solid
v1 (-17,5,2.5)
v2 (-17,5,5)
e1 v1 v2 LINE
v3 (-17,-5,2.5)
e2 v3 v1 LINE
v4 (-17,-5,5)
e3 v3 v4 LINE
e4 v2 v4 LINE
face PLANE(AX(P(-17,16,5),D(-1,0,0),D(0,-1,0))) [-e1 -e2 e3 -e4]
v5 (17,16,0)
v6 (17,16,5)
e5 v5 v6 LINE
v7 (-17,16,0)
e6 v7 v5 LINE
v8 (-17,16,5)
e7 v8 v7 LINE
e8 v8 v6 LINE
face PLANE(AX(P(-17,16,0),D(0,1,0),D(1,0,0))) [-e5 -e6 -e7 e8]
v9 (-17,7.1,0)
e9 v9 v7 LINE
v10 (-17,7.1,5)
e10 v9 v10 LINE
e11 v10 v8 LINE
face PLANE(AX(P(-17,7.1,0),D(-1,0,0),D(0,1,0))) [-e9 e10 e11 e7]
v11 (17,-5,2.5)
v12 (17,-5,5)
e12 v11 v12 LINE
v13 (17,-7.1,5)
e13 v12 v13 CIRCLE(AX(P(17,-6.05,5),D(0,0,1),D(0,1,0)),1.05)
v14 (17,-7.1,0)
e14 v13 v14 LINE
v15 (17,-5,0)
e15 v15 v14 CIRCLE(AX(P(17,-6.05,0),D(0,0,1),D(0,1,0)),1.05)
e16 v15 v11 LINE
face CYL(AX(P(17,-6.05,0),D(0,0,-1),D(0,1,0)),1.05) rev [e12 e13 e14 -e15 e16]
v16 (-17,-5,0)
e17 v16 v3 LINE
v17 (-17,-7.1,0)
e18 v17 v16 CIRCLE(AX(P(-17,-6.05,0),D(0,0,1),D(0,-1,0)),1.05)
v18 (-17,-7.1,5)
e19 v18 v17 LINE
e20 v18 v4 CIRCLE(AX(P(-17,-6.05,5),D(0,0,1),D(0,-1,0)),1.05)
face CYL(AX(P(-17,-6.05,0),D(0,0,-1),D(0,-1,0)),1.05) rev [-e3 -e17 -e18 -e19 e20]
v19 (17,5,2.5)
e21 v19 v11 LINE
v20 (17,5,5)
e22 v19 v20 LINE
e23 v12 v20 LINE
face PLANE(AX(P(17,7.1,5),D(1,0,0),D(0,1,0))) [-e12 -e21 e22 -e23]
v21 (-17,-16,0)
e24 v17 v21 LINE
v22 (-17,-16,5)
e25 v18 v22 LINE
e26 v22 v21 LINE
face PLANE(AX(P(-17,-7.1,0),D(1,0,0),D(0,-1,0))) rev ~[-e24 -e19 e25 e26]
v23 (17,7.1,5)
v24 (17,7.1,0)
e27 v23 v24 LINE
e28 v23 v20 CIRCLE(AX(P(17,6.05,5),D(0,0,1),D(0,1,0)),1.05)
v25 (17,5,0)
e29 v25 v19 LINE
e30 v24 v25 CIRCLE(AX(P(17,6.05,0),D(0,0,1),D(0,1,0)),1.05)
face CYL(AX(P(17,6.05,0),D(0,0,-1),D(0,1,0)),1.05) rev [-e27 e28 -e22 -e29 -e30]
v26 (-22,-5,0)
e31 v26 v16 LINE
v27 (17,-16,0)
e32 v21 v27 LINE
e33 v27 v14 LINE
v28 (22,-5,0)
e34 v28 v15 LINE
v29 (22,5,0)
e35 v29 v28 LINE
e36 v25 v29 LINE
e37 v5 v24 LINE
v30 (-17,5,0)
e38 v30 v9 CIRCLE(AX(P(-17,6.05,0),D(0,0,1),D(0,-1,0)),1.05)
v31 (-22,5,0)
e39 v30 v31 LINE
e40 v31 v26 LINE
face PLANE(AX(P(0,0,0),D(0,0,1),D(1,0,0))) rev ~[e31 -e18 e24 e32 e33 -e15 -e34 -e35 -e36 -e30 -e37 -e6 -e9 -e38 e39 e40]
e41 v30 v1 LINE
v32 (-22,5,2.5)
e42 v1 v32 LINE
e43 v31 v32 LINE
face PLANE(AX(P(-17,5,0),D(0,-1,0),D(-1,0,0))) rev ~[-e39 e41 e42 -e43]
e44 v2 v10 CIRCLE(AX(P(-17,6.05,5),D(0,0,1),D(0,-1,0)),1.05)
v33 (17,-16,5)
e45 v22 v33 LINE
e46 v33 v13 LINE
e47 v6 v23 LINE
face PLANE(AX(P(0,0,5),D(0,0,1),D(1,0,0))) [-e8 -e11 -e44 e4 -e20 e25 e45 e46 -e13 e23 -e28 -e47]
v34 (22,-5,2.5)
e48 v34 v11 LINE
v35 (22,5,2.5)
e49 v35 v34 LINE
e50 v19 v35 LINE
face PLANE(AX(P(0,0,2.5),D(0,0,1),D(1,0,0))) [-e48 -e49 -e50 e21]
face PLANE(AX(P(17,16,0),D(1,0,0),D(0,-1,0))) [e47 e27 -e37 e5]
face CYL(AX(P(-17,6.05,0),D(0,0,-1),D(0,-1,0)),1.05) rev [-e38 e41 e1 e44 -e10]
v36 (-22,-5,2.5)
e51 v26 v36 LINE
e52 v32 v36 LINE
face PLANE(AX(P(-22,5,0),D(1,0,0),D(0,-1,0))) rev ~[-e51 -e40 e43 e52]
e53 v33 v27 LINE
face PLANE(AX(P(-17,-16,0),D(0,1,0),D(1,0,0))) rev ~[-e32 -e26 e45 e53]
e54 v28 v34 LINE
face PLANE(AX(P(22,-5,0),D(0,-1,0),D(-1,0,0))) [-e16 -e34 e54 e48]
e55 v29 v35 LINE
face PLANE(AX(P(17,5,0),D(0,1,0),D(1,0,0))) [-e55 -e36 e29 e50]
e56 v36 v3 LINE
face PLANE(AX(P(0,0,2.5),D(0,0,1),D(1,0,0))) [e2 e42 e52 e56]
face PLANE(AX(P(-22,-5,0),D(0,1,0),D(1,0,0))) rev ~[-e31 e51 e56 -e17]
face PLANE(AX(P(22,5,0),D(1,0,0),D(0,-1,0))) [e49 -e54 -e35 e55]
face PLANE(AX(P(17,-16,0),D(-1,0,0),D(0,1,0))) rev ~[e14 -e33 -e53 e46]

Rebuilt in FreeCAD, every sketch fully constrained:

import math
import FreeCAD as App
import Part
import Sketcher
Q = App.Units.Quantity

doc = App.newDocument("Part")
body = doc.addObject("PartDesign::Body", "Body")

sketch1 = body.newObject("Sketcher::SketchObject", "Sketch")
sketch1.AttachmentSupport = (doc.getObject("XY_Plane"), [""])
sketch1.MapMode = "FlatFace"
sketch1.addGeometry(Part.LineSegment(App.Vector(-17, 16, 0), App.Vector(-17, 7.1, 0)), False)
sketch1.addGeometry(Part.ArcOfCircle(Part.Circle(App.Vector(-17, 6, 0), App.Vector(0, 0, 1), 1), math.radians(-90), math.radians(90)), False)
sketch1.addGeometry(Part.LineSegment(App.Vector(-17, 5, 0), App.Vector(-22, 5, 0)), False)
sketch1.addGeometry(Part.LineSegment(App.Vector(-22, 5, 0), App.Vector(-22, -5, 0)), False)
sketch1.addGeometry(Part.LineSegment(App.Vector(-22, -5, 0), App.Vector(-17, -5, 0)), False)
sketch1.addGeometry(Part.ArcOfCircle(Part.Circle(App.Vector(-17, -6, 0), App.Vector(0, 0, 1), 1), math.radians(-90), math.radians(90)), False)
sketch1.addGeometry(Part.LineSegment(App.Vector(-17, -7.1, 0), App.Vector(-17, -16, 0)), False)
sketch1.addGeometry(Part.LineSegment(App.Vector(-17, -16, 0), App.Vector(17, -16, 0)), False)
sketch1.addGeometry(Part.LineSegment(App.Vector(17, -16, 0), App.Vector(17, -7.1, 0)), False)
sketch1.addGeometry(Part.ArcOfCircle(Part.Circle(App.Vector(17, -6, 0), App.Vector(0, 0, 1), 1), math.radians(90), math.radians(270)), False)
sketch1.addGeometry(Part.LineSegment(App.Vector(17, -5, 0), App.Vector(22, -5, 0)), False)
sketch1.addGeometry(Part.LineSegment(App.Vector(22, -5, 0), App.Vector(22, 5, 0)), False)
sketch1.addGeometry(Part.LineSegment(App.Vector(22, 5, 0), App.Vector(17, 5, 0)), False)
sketch1.addGeometry(Part.ArcOfCircle(Part.Circle(App.Vector(17, 6, 0), App.Vector(0, 0, 1), 1), math.radians(90), math.radians(270)), False)
sketch1.addGeometry(Part.LineSegment(App.Vector(17, 7.1, 0), App.Vector(17, 16, 0)), False)
sketch1.addGeometry(Part.LineSegment(App.Vector(17, 16, 0), App.Vector(-17, 16, 0)), False)
sketch1.addConstraint(Sketcher.Constraint("Coincident", 0, 2, 1, 2))
sketch1.addConstraint(Sketcher.Constraint("Tangent", 1, 1, 2, 1))
sketch1.addConstraint(Sketcher.Constraint("Coincident", 2, 2, 3, 1))
sketch1.addConstraint(Sketcher.Constraint("Coincident", 3, 2, 4, 1))
sketch1.addConstraint(Sketcher.Constraint("Tangent", 4, 2, 5, 2))
sketch1.addConstraint(Sketcher.Constraint("Coincident", 5, 1, 6, 1))
sketch1.addConstraint(Sketcher.Constraint("Coincident", 6, 2, 7, 1))
sketch1.addConstraint(Sketcher.Constraint("Coincident", 7, 2, 8, 1))
sketch1.addConstraint(Sketcher.Constraint("Coincident", 8, 2, 9, 2))
sketch1.addConstraint(Sketcher.Constraint("Tangent", 9, 1, 10, 1))
sketch1.addConstraint(Sketcher.Constraint("Coincident", 10, 2, 11, 1))
sketch1.addConstraint(Sketcher.Constraint("Coincident", 11, 2, 12, 1))
sketch1.addConstraint(Sketcher.Constraint("Tangent", 12, 2, 13, 2))
sketch1.addConstraint(Sketcher.Constraint("Coincident", 13, 1, 14, 1))
sketch1.addConstraint(Sketcher.Constraint("Coincident", 14, 2, 15, 1))
sketch1.addConstraint(Sketcher.Constraint("Coincident", 15, 2, 0, 1))
sketch1.addConstraint(Sketcher.Constraint("Vertical", 0))
sketch1.addConstraint(Sketcher.Constraint("Horizontal", 2))
sketch1.addConstraint(Sketcher.Constraint("Vertical", 3))
sketch1.addConstraint(Sketcher.Constraint("Horizontal", 4))
sketch1.addConstraint(Sketcher.Constraint("Vertical", 6))
sketch1.addConstraint(Sketcher.Constraint("Horizontal", 7))
sketch1.addConstraint(Sketcher.Constraint("Vertical", 8))
sketch1.addConstraint(Sketcher.Constraint("Horizontal", 10))
sketch1.addConstraint(Sketcher.Constraint("Vertical", 11))
sketch1.addConstraint(Sketcher.Constraint("Horizontal", 12))
sketch1.addConstraint(Sketcher.Constraint("Vertical", 14))
sketch1.addConstraint(Sketcher.Constraint("Horizontal", 15))
sketch1.addConstraint(Sketcher.Constraint("Equal", 1, 5))
sketch1.addConstraint(Sketcher.Constraint("Equal", 5, 9))
sketch1.addConstraint(Sketcher.Constraint("Equal", 9, 13))
sketch1.addConstraint(Sketcher.Constraint("Symmetric", 1, 3, 9, 3, -1, 1))
sketch1.addConstraint(Sketcher.Constraint("Symmetric", 5, 3, 13, 3, -1, 1))
sketch1.addConstraint(Sketcher.Constraint("Symmetric", 6, 2, 14, 2, -1, 1))
sketch1.addConstraint(Sketcher.Constraint("Symmetric", 5, 3, 9, 3, -2))
sketch1.addConstraint(Sketcher.Constraint("Vertical", 5, 3, 0, 2))
sketch1.addConstraint(Sketcher.Constraint("Vertical", 4, 2, 5, 1))
sketch1.addConstraint(Sketcher.Constraint("Vertical", 13, 3, 7, 2))
sketch1.addConstraint(Sketcher.Constraint("Equal", 4, 10))
sketch1.addConstraint(Sketcher.Constraint("DistanceX", 2, 2, 2, 1, Q("5 mm")))
sketch1.addConstraint(Sketcher.Constraint("DistanceX", 7, 1, 7, 2, Q("34 mm")))
sketch1.addConstraint(Sketcher.Constraint("Radius", 1, Q("1.05 mm")))
sketch1.addConstraint(Sketcher.Constraint("DistanceY", -1, 1, 1, 1, Q("5 mm")))
sketch1.addConstraint(Sketcher.Constraint("DistanceY", 6, 2, 4, 2, Q("11 mm")))
pad1 = body.newObject("PartDesign::Pad", "Pad")
pad1.Profile = sketch1
pad1.Length = 5

sketch2 = body.newObject("Sketcher::SketchObject", "Sketch001")
sketch2.AttachmentSupport = (doc.getObject("XY_Plane"), [""])
sketch2.MapMode = "FlatFace"
sketch2.AttachmentOffset = App.Placement(App.Vector(0, 0, 5), App.Rotation())
sketch2.addGeometry(Part.LineSegment(App.Vector(-17, -24, 0), App.Vector(-17, 19, 0)), False)
sketch2.addGeometry(Part.LineSegment(App.Vector(-17, 19, 0), App.Vector(-28, 19, 0)), False)
sketch2.addGeometry(Part.LineSegment(App.Vector(-28, 19, 0), App.Vector(-28, -24, 0)), False)
sketch2.addGeometry(Part.LineSegment(App.Vector(-28, -24, 0), App.Vector(-17, -24, 0)), False)
sketch2.addGeometry(Part.LineSegment(App.Vector(17, 14, 0), App.Vector(17, -20, 0)), False)
sketch2.addGeometry(Part.LineSegment(App.Vector(17, -20, 0), App.Vector(34, -20, 0)), False)
sketch2.addGeometry(Part.LineSegment(App.Vector(34, -20, 0), App.Vector(34, 14, 0)), False)
sketch2.addGeometry(Part.LineSegment(App.Vector(34, 14, 0), App.Vector(17, 14, 0)), False)
sketch2.addConstraint(Sketcher.Constraint("Coincident", 0, 2, 1, 1))
sketch2.addConstraint(Sketcher.Constraint("Coincident", 1, 2, 2, 1))
sketch2.addConstraint(Sketcher.Constraint("Coincident", 2, 2, 3, 1))
sketch2.addConstraint(Sketcher.Constraint("Coincident", 3, 2, 0, 1))
sketch2.addConstraint(Sketcher.Constraint("Coincident", 4, 2, 5, 1))
sketch2.addConstraint(Sketcher.Constraint("Coincident", 5, 2, 6, 1))
sketch2.addConstraint(Sketcher.Constraint("Coincident", 6, 2, 7, 1))
sketch2.addConstraint(Sketcher.Constraint("Coincident", 7, 2, 4, 1))
sketch2.addConstraint(Sketcher.Constraint("Vertical", 0))
sketch2.addConstraint(Sketcher.Constraint("Horizontal", 1))
sketch2.addConstraint(Sketcher.Constraint("Vertical", 2))
sketch2.addConstraint(Sketcher.Constraint("Horizontal", 3))
sketch2.addConstraint(Sketcher.Constraint("Vertical", 4))
sketch2.addConstraint(Sketcher.Constraint("Horizontal", 5))
sketch2.addConstraint(Sketcher.Constraint("Vertical", 6))
sketch2.addConstraint(Sketcher.Constraint("Horizontal", 7))
sketch2.addConstraint(Sketcher.Constraint("DistanceX", 0, 2, -1, 1, Q("17 mm")))
sketch2.addConstraint(Sketcher.Constraint("DistanceX", -1, 1, 4, 2, Q("17 mm")))
sketch2.addConstraint(Sketcher.Constraint("DistanceX", 5, 1, 5, 2, Q("17.37 mm")))
sketch2.addConstraint(Sketcher.Constraint("DistanceY", 0, 1, 0, 2, Q("42.56 mm")))
sketch2.addConstraint(Sketcher.Constraint("DistanceX", 1, 2, 1, 1, Q("11.2886 mm")))
sketch2.addConstraint(Sketcher.Constraint("DistanceY", 4, 2, 4, 1, Q("33.7955 mm")))
sketch2.addConstraint(Sketcher.Constraint("DistanceY", -1, 1, 6, 2, Q("13.565 mm")))
sketch2.addConstraint(Sketcher.Constraint("DistanceY", -1, 1, 0, 2, Q("18.8938 mm")))
pocket1 = body.newObject("PartDesign::Pocket", "Pocket")
pocket1.Profile = sketch2
pocket1.Length = 2.5

doc.recompute()
